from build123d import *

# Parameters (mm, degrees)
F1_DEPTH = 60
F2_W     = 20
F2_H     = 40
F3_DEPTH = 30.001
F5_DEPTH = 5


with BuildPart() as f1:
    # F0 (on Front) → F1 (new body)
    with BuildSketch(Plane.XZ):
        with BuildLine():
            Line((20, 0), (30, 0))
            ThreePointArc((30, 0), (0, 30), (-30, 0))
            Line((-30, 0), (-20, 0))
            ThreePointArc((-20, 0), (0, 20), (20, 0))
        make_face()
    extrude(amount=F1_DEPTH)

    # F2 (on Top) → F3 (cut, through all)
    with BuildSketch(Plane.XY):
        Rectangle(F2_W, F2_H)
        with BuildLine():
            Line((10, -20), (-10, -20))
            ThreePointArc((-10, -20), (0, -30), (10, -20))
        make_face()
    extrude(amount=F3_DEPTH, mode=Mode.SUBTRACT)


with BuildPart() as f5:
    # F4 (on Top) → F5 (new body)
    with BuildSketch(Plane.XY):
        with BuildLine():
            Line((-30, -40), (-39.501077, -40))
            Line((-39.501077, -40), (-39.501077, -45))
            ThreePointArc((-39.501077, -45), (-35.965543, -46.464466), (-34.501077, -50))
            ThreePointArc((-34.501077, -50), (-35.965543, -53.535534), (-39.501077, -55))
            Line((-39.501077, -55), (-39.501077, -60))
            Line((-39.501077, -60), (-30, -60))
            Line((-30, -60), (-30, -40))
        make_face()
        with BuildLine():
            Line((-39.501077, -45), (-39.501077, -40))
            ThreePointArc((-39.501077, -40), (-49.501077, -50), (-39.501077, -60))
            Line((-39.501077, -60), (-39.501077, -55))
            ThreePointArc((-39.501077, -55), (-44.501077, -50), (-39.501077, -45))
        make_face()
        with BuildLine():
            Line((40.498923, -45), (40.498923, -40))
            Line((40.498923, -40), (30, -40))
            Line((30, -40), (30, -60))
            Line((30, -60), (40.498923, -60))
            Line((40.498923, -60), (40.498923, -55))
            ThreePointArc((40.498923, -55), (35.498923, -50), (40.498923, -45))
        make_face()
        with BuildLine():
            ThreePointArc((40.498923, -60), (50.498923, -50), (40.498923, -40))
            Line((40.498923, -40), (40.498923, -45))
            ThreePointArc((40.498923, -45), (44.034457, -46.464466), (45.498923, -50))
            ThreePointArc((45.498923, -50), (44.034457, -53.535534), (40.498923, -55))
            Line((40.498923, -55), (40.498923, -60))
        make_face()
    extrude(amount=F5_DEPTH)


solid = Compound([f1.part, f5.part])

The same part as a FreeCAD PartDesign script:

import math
import FreeCAD as App
import Part
import Sketcher

V = App.Vector
Q = App.Units.Quantity

doc = App.newDocument("Part")
params = doc.addObject("Spreadsheet::Sheet", "Params")
for row, (alias, value) in enumerate([
    ("sketch1_radius", "30 mm"),
    ("sketch1_radius2", "20 mm"),
    ("pad1_length", "60 mm"),
    ("sketch2_radius", "10 mm"),
    ("sketch2_height", "40 mm"),
    ("sketch3_radius", "10 mm"),
    ("sketch3_radius2", "5 mm"),
    ("pad2_length", "5 mm"),
], start=1):
    params.set(f"A{row}", alias)
    params.set(f"B{row}", "=" + value)
    params.setAlias(f"B{row}", alias)

body = doc.addObject("PartDesign::Body", "Body")

sketch1 = body.newObject("Sketcher::SketchObject", "Sketch")
sketch1.AttachmentSupport = (doc.getObject("XZ_Plane"), [""])
sketch1.MapMode = "FlatFace"
sketch1.addGeometry(Part.LineSegment(V(20, 0, 0), V(30, 0, 0)), False)
sketch1.addGeometry(Part.ArcOfCircle(Part.Circle(V(0, 0, 0), V(0, 0, 1), 30), math.radians(0), math.radians(180)), False)
sketch1.addGeometry(Part.LineSegment(V(-30, 0, 0), V(-20, 0, 0)), False)
sketch1.addGeometry(Part.ArcOfCircle(Part.Circle(V(0, 0, 0), V(0, 0, 1), 20), math.radians(0), math.radians(180)), False)
sketch1.addConstraint(Sketcher.Constraint("Coincident", 0, 2, 1, 1))
sketch1.addConstraint(Sketcher.Constraint("Coincident", 1, 2, 2, 1))
sketch1.addConstraint(Sketcher.Constraint("Coincident", 2, 2, 3, 2))
sketch1.addConstraint(Sketcher.Constraint("Coincident", 3, 1, 0, 1))
sketch1.addConstraint(Sketcher.Constraint("Horizontal", 0))
sketch1.addConstraint(Sketcher.Constraint("Horizontal", 2))
sketch1.addConstraint(Sketcher.Constraint("Coincident", 1, 3, -1, 1))
sketch1.addConstraint(Sketcher.Constraint("Coincident", 3, 3, -1, 1))
sketch1.addConstraint(Sketcher.Constraint("PointOnObject", 0, 2, -1))
sketch1.addConstraint(Sketcher.Constraint("PointOnObject", 1, 2, -1))
sketch1.addConstraint(Sketcher.Constraint("Radius", 1, Q("30 mm")))
sketch1.addConstraint(Sketcher.Constraint("Radius", 3, Q("20 mm")))
sketch1.setExpression("Constraints[10]", "Params.sketch1_radius")
sketch1.setExpression("Constraints[11]", "Params.sketch1_radius2")
pad1 = body.newObject("PartDesign::Pad", "Pad")
pad1.Profile = sketch1
pad1.setExpression("Length", "Params.pad1_length")

sketch2 = body.newObject("Sketcher::SketchObject", "Sketch001")
sketch2.AttachmentSupport = (doc.getObject("XY_Plane"), [""])
sketch2.MapMode = "FlatFace"
sketch2.addGeometry(Part.LineSegment(V(-10, 20, 0), V(-10, -20, 0)), False)
sketch2.addGeometry(Part.ArcOfCircle(Part.Circle(V(0, -20, 0), V(0, 0, 1), 10), math.radians(180), math.radians(360)), False)
sketch2.addGeometry(Part.LineSegment(V(10, -20, 0), V(10, 20, 0)), False)
sketch2.addGeometry(Part.LineSegment(V(10, 20, 0), V(-10, 20, 0)), False)
sketch2.addConstraint(Sketcher.Constraint("Tangent", 0, 2, 1, 1))
sketch2.addConstraint(Sketcher.Constraint("Tangent", 1, 2, 2, 1))
sketch2.addConstraint(Sketcher.Constraint("Coincident", 2, 2, 3, 1))
sketch2.addConstraint(Sketcher.Constraint("Coincident", 3, 2, 0, 1))
sketch2.addConstraint(Sketcher.Constraint("Vertical", 0))
sketch2.addConstraint(Sketcher.Constraint("Vertical", 2))
sketch2.addConstraint(Sketcher.Constraint("Horizontal", 3))
sketch2.addConstraint(Sketcher.Constraint("Symmetric", 0, 2, 2, 2, -1, 1))
sketch2.addConstraint(Sketcher.Constraint("Radius", 1, Q("10 mm")))
sketch2.addConstraint(Sketcher.Constraint("DistanceY", 0, 2, 0, 1, Q("40 mm")))
sketch2.setExpression("Constraints[8]", "Params.sketch2_radius")
sketch2.setExpression("Constraints[9]", "Params.sketch2_height")
pocket1 = body.newObject("PartDesign::Pocket", "Pocket")
pocket1.Profile = sketch2
pocket1.Type = "ThroughAll"
pocket1.Reversed = True
body2 = doc.addObject("PartDesign::Body", "Body001")
body2.AllowCompound = True

sketch3 = body2.newObject("Sketcher::SketchObject", "Sketch002")
sketch3.AttachmentSupport = (doc.getObject("XY_Plane001"), [""])
sketch3.MapMode = "FlatFace"
sketch3.addGeometry(Part.LineSegment(V(-30, -40, 0), V(-39.501077, -40, 0)), False)
sketch3.addGeometry(Part.ArcOfCircle(Part.Circle(V(-39.501077, -50, 0), V(0, 0, 1), 10), math.radians(90), math.radians(270)), False)
sketch3.addGeometry(Part.LineSegment(V(-39.501077, -60, 0), V(-30, -60, 0)), False)
sketch3.addGeometry(Part.LineSegment(V(-30, -60, 0), V(-30, -40, 0)), False)
sketch3.addGeometry(Part.ArcOfCircle(Part.Circle(V(-39.501077, -50, 0), V(0, 0, 1), 5), math.radians(-0.000004), math.radians(90.000004)), False)
sketch3.addGeometry(Part.ArcOfCircle(Part.Circle(V(-39.501077, -50, 0), V(0, 0, 1), 5), math.radians(-90.000004), math.radians(0.000004)), False)
sketch3.addGeometry(Part.ArcOfCircle(Part.Circle(V(-39.501077, -50, 0), V(0, 0, 1), 5), math.radians(90), math.radians(270)), False)
sketch3.addGeometry(Part.LineSegment(V(40.498923, -40, 0), V(30, -40, 0)), False)
sketch3.addGeometry(Part.LineSegment(V(30, -40, 0), V(30, -60, 0)), False)
sketch3.addGeometry(Part.LineSegment(V(30, -60, 0), V(40.498923, -60, 0)), False)
sketch3.addGeometry(Part.ArcOfCircle(Part.Circle(V(40.498923, -50, 0), V(0, 0, 1), 10), math.radians(-90), math.radians(90)), False)
sketch3.addGeometry(Part.ArcOfCircle(Part.Circle(V(40.498923, -50, 0), V(0, 0, 1), 5), math.radians(90), math.radians(270)), False)
sketch3.addGeometry(Part.ArcOfCircle(Part.Circle(V(40.498923, -50, 0), V(0, 0, 1), 5), math.radians(-0.000004), math.radians(90.000004)), False)
sketch3.addGeometry(Part.ArcOfCircle(Part.Circle(V(40.498923, -50, 0), V(0, 0, 1), 5), math.radians(-90.000004), math.radians(0.000004)), False)
sketch3.addConstraint(Sketcher.Constraint("Tangent", 0, 2, 1, 1))
sketch3.addConstraint(Sketcher.Constraint("Tangent", 1, 2, 2, 1))
sketch3.addConstraint(Sketcher.Constraint("Coincident", 2, 2, 3, 1))
sketch3.addConstraint(Sketcher.Constraint("Coincident", 3, 2, 0, 1))
sketch3.addConstraint(Sketcher.Constraint("Tangent", 4, 1, 5, 2))
sketch3.addConstraint(Sketcher.Constraint("Tangent", 5, 1, 6, 2))
sketch3.addConstraint(Sketcher.Constraint("Tangent", 6, 1, 4, 2))
sketch3.addConstraint(Sketcher.Constraint("Coincident", 7, 2, 8, 1))
sketch3.addConstraint(Sketcher.Constraint("Coincident", 8, 2, 9, 1))
sketch3.addConstraint(Sketcher.Constraint("Tangent", 9, 2, 10, 1))
sketch3.addConstraint(Sketcher.Constraint("Tangent", 10, 2, 7, 1))
sketch3.addConstraint(Sketcher.Constraint("Tangent", 11, 1, 12, 2))
sketch3.addConstraint(Sketcher.Constraint("Tangent", 12, 1, 13, 2))
sketch3.addConstraint(Sketcher.Constraint("Tangent", 13, 1, 11, 2))
sketch3.addConstraint(Sketcher.Constraint("Horizontal", 0))
sketch3.addConstraint(Sketcher.Constraint("Horizontal", 2))
sketch3.addConstraint(Sketcher.Constraint("Vertical", 3))
sketch3.addConstraint(Sketcher.Constraint("Horizontal", 7))
sketch3.addConstraint(Sketcher.Constraint("Vertical", 8))
sketch3.addConstraint(Sketcher.Constraint("Horizontal", 9))
sketch3.addConstraint(Sketcher.Constraint("Coincident", 4, 3, 1, 3))
sketch3.addConstraint(Sketcher.Constraint("Coincident", 11, 3, 10, 3))
sketch3.addConstraint(Sketcher.Constraint("Equal", 1, 10))
sketch3.addConstraint(Sketcher.Constraint("Equal", 6, 11))
sketch3.addConstraint(Sketcher.Constraint("Symmetric", 3, 2, 7, 2, -2))
sketch3.addConstraint(Sketcher.Constraint("Horizontal", 13, 3, 4, 1))
sketch3.addConstraint(Sketcher.Constraint("Horizontal", 4, 1, 12, 1))
sketch3.addConstraint(Sketcher.Constraint("Vertical", 1, 2, 5, 1))
sketch3.addConstraint(Sketcher.Constraint("Vertical", 5, 1, 6, 1))
sketch3.addConstraint(Sketcher.Constraint("Vertical", 10, 2, 11, 1))
sketch3.addConstraint(Sketcher.Constraint("Vertical", 11, 1, 13, 1))
sketch3.addConstraint(Sketcher.Constraint("Radius", 1, Q("10 mm")))
sketch3.addConstraint(Sketcher.Constraint("Radius", 4, Q("5 mm")))
sketch3.addConstraint(Sketcher.Constraint("DistanceY", 1, 3, -1, 1, Q("50 mm")))
sketch3.addConstraint(Sketcher.Constraint("DistanceX", 2, 2, -1, 1, Q("30 mm")))
sketch3.addConstraint(Sketcher.Constraint("DistanceX", 4, 3, 10, 3, Q("80 mm")))
sketch3.addConstraint(Sketcher.Constraint("DistanceX", 0, 2, 0, 1, Q("9.501077 mm")))
sketch3.setExpression("Constraints[31]", "Params.sketch3_radius")
sketch3.setExpression("Constraints[32]", "Params.sketch3_radius2")
pad2 = body2.newObject("PartDesign::Pad", "Pad001")
pad2.Profile = sketch3
pad2.setExpression("Length", "Params.pad2_length")

doc.recompute()
